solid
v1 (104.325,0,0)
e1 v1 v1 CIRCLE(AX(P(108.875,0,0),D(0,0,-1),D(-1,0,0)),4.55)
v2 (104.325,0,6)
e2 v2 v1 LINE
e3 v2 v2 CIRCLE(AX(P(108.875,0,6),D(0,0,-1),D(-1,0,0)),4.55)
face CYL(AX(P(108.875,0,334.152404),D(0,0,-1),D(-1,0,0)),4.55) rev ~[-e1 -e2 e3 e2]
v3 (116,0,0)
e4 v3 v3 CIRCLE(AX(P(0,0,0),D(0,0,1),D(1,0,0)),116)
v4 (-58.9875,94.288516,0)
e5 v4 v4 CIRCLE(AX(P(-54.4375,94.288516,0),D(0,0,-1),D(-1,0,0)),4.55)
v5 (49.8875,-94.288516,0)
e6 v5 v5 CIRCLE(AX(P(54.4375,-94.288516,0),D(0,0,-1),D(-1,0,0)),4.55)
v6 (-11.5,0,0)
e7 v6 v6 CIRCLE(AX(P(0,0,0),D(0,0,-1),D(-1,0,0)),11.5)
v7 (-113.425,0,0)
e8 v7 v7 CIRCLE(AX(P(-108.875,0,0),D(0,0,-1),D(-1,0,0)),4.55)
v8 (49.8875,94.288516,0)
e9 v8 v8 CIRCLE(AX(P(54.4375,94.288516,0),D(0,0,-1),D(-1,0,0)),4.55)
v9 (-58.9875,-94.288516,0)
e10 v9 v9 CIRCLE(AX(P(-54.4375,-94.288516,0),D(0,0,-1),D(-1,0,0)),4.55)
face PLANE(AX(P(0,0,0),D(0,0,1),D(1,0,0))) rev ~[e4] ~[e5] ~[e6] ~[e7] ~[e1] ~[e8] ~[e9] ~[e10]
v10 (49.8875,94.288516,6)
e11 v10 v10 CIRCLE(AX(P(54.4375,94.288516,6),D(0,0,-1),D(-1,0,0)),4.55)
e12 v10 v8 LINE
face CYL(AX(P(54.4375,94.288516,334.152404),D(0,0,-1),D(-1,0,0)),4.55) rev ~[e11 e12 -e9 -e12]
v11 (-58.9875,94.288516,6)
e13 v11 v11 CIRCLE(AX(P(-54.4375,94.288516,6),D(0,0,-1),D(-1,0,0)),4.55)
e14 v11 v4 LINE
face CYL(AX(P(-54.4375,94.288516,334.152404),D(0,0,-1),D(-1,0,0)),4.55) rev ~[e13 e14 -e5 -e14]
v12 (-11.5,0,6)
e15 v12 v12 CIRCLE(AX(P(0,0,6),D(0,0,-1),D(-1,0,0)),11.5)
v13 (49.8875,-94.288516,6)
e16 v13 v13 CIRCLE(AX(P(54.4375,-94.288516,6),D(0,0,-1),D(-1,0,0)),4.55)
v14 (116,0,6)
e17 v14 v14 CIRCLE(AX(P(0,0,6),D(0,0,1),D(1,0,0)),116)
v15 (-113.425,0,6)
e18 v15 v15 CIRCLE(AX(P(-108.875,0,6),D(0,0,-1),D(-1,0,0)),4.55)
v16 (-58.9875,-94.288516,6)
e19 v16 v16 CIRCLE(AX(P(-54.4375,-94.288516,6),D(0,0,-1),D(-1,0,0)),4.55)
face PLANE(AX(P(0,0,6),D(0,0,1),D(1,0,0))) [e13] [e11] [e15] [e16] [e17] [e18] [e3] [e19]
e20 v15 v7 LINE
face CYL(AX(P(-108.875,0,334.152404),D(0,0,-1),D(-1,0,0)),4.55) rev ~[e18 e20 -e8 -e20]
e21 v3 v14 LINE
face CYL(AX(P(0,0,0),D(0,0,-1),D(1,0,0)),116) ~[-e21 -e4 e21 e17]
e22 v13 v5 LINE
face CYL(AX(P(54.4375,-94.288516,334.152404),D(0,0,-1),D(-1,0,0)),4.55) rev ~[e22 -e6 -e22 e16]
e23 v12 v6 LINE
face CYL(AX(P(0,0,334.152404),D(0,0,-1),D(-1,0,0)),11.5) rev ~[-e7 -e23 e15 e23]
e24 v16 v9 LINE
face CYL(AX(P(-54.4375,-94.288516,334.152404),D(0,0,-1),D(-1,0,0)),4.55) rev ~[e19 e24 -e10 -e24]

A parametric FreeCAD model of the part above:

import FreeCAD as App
import Part
import Sketcher
from FreeCAD import Vector
Q = App.Units.Quantity

doc = App.newDocument("Part")
body = doc.addObject("PartDesign::Body", "Body")

# Sketch on XY plane
sketch1 = body.newObject("Sketcher::SketchObject", "Sketch")
sketch1.AttachmentSupport = (doc.getObject("XY_Plane"), [""])
sketch1.MapMode = "FlatFace"
sketch1.addGeometry(Part.Circle(Vector(0, 0, 0), Vector(0, 0, 1), 116), False)
sketch1.addConstraint([
    Sketcher.Constraint("Coincident", 0, 3, -1, 1),
    Sketcher.Constraint("Diameter", 0, Q("232 mm")),
])
pad1 = body.newObject("PartDesign::Pad", "Pad")
pad1.Profile = sketch1
pad1.Length = 6

# Sketch on XY plane
sketch2 = body.newObject("Sketcher::SketchObject", "Sketch001")
sketch2.AttachmentSupport = (doc.getObject("XY_Plane"), [""])
sketch2.MapMode = "FlatFace"
sketch2.AttachmentOffset = App.Placement(Vector(0, 0, 6), App.Rotation())
sketch2.addGeometry([
    Part.Circle(Vector(-54.4, 94.3, 0), Vector(0, 0, 1), 4.5),  # 0
    Part.Circle(Vector(54.4, 94.3, 0), Vector(0, 0, 1), 4.5),  # 1
    Part.Circle(Vector(108.9, 0, 0), Vector(0, 0, 1), 4.5),  # 2
    Part.Circle(Vector(54.4, -94.3, 0), Vector(0, 0, 1), 4.5),  # 3
    Part.Circle(Vector(-54.4, -94.3, 0), Vector(0, 0, 1), 4.5),  # 4
    Part.Circle(Vector(-108.9, 0, 0), Vector(0, 0, 1), 4.5),  # 5
], False)
sketch2.addConstraint([
    Sketcher.Constraint("Equal", 0, 1),
    Sketcher.Constraint("Equal", 1, 2),
    Sketcher.Constraint("Equal", 2, 3),
    Sketcher.Constraint("Equal", 3, 4),
    Sketcher.Constraint("Equal", 4, 5),
    Sketcher.Constraint("Symmetric", 0, 3, 3, 3, -1, 1),
    Sketcher.Constraint("Symmetric", 1, 3, 4, 3, -1, 1),
    Sketcher.Constraint("Symmetric", 2, 3, 5, 3, -1, 1),
    Sketcher.Constraint("Symmetric", 0, 3, 1, 3, -2),
    Sketcher.Constraint("PointOnObject", 2, 3, -1),
    Sketcher.Constraint("Diameter", 0, Q("9.1 mm")),
    Sketcher.Constraint("DistanceX", 5, 3, 2, 3, Q("217.75 mm")),
    Sketcher.Constraint("DistanceX", 0, 3, 1, 3, Q("108.875 mm")),
    Sketcher.Constraint("DistanceY", 3, 3, 1, 3, Q("188.577032 mm")),
])
doc.recompute()
hole = body.newObject("PartDesign::Hole", "Hole")
hole.Profile = sketch2
hole.ThreadType = "None"
hole.Diameter = 9.1
hole.DepthType = "ThroughAll"

# Sketch on XY plane
sketch3 = body.newObject("Sketcher::SketchObject", "Sketch002")
sketch3.AttachmentSupport = (doc.getObject("XY_Plane"), [""])
sketch3.MapMode = "FlatFace"
sketch3.AttachmentOffset = App.Placement(Vector(0, 0, 6), App.Rotation())
sketch3.addGeometry(Part.Circle(Vector(0, 0, 0), Vector(0, 0, 1), 12), False)
sketch3.addConstraint([
    Sketcher.Constraint("Coincident", 0, 3, -1, 1),
    Sketcher.Constraint("Diameter", 0, Q("23 mm")),
])
doc.recompute()
hole2 = body.newObject("PartDesign::Hole", "Hole001")
hole2.Profile = sketch3
hole2.ThreadType = "None"
hole2.Diameter = 23
hole2.DepthType = "ThroughAll"

doc.recompute()
